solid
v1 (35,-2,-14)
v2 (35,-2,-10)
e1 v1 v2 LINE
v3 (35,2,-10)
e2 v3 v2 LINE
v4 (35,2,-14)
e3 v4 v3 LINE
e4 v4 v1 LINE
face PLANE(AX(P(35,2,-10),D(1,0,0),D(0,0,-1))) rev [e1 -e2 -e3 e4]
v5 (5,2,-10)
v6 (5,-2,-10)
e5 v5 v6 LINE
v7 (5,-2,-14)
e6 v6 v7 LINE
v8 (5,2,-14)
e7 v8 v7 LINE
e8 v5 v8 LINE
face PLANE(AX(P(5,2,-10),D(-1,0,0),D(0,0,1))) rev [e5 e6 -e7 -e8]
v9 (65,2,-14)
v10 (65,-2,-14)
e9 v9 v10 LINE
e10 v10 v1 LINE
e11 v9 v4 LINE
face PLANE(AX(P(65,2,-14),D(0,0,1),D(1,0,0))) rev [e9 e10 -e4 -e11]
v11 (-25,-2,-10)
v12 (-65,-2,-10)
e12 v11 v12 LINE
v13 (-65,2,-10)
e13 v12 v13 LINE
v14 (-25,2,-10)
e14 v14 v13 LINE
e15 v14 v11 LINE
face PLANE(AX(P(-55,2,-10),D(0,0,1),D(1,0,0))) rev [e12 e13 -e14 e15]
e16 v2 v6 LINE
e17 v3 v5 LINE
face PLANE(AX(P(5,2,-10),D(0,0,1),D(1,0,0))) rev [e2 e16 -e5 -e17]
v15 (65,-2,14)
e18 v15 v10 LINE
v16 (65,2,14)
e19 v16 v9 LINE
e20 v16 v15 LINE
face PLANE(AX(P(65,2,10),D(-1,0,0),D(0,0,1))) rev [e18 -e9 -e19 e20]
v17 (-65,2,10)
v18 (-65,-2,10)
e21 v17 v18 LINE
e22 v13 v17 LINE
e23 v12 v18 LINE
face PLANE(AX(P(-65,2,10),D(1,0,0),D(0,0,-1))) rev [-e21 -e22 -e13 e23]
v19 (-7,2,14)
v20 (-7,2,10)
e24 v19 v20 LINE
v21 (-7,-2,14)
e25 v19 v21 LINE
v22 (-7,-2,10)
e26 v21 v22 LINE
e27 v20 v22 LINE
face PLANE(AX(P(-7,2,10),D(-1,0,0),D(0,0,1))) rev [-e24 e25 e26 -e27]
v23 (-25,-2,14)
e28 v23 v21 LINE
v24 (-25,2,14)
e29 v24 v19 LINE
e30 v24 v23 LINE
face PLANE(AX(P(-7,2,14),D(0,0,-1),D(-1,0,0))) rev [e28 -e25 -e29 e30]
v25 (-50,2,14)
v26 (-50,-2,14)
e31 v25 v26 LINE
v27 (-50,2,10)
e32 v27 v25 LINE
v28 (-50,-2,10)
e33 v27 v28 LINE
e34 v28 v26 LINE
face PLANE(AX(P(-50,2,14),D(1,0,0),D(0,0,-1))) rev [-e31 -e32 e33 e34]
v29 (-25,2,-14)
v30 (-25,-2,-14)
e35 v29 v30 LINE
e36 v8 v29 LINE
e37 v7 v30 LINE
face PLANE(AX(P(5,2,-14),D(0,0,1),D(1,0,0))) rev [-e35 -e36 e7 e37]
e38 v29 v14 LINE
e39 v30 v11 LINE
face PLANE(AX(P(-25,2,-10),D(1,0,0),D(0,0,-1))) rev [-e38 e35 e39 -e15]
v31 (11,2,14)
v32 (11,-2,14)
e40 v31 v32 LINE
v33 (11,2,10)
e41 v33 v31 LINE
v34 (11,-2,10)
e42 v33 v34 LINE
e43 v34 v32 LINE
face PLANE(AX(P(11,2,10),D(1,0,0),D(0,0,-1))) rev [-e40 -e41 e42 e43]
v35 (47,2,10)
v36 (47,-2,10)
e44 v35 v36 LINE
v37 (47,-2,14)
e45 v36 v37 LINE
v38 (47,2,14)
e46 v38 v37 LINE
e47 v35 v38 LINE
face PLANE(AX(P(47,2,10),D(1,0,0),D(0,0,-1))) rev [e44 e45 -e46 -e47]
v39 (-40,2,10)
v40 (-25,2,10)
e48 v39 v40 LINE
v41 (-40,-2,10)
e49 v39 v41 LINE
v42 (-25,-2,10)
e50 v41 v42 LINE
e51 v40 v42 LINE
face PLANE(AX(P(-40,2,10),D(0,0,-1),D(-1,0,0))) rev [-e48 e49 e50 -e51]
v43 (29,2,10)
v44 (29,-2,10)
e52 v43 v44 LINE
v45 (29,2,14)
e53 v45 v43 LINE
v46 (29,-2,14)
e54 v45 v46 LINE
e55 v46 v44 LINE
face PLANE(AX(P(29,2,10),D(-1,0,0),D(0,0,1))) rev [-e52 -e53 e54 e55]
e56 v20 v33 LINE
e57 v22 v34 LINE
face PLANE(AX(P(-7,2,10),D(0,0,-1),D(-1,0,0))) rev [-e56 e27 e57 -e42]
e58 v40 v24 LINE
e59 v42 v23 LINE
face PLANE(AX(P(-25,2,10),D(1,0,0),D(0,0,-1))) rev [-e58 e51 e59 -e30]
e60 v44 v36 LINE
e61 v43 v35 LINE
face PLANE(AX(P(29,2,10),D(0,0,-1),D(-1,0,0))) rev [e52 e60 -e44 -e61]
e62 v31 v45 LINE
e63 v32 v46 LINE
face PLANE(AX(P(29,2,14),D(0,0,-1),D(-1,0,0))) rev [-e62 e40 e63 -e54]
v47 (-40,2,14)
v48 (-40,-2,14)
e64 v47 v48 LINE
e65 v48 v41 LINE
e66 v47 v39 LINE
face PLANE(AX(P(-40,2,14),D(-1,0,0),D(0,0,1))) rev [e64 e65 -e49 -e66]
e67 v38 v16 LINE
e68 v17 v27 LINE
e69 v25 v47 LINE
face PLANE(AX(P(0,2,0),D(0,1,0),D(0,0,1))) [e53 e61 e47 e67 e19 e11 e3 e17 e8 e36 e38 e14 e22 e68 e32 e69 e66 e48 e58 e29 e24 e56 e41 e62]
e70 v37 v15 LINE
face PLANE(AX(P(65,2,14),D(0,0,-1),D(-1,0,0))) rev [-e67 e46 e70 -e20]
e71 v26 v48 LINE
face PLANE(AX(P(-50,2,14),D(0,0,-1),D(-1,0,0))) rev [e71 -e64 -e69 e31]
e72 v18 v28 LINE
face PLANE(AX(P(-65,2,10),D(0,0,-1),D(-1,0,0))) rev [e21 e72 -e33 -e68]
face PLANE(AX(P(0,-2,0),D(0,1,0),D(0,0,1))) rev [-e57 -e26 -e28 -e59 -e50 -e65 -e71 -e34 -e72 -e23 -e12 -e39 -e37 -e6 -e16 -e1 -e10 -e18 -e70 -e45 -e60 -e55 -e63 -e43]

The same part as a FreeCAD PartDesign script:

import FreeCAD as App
import Part
import Sketcher
Q = App.Units.Quantity

doc = App.newDocument("Part")
body = doc.addObject("PartDesign::Body", "Body")

sketch1 = body.newObject("Sketcher::SketchObject", "Sketch")
sketch1.AttachmentSupport = (doc.getObject("XZ_Plane"), [""])
sketch1.MapMode = "FlatFace"
sketch1.addGeometry([
    Part.LineSegment(App.Vector(-65, 10, 0), App.Vector(-50, 10, 0)),
    Part.LineSegment(App.Vector(-50, 10, 0), App.Vector(-50, 14, 0)),
    Part.LineSegment(App.Vector(-50, 14, 0), App.Vector(-40, 14, 0)),
    Part.LineSegment(App.Vector(-40, 14, 0), App.Vector(-40, 10, 0)),
    Part.LineSegment(App.Vector(-40, 10, 0), App.Vector(-25, 10, 0)),
    Part.LineSegment(App.Vector(-25, 10, 0), App.Vector(-25, 14, 0)),
    Part.LineSegment(App.Vector(-25, 14, 0), App.Vector(-7, 14, 0)),
    Part.LineSegment(App.Vector(-7, 14, 0), App.Vector(-7, 10, 0)),
    Part.LineSegment(App.Vector(-7, 10, 0), App.Vector(11, 10, 0)),
    Part.LineSegment(App.Vector(11, 10, 0), App.Vector(11, 14, 0)),
    Part.LineSegment(App.Vector(11, 14, 0), App.Vector(29, 14, 0)),
    Part.LineSegment(App.Vector(29, 14, 0), App.Vector(29, 10, 0)),
    Part.LineSegment(App.Vector(29, 10, 0), App.Vector(47, 10, 0)),
    Part.LineSegment(App.Vector(47, 10, 0), App.Vector(47, 14, 0)),
    Part.LineSegment(App.Vector(47, 14, 0), App.Vector(65, 14, 0)),
    Part.LineSegment(App.Vector(65, 14, 0), App.Vector(65, -14, 0)),
    Part.LineSegment(App.Vector(65, -14, 0), App.Vector(35, -14, 0)),
    Part.LineSegment(App.Vector(35, -14, 0), App.Vector(35, -10, 0)),
    Part.LineSegment(App.Vector(35, -10, 0), App.Vector(5, -10, 0)),
    Part.LineSegment(App.Vector(5, -10, 0), App.Vector(5, -14, 0)),
    Part.LineSegment(App.Vector(5, -14, 0), App.Vector(-25, -14, 0)),
    Part.LineSegment(App.Vector(-25, -14, 0), App.Vector(-25, -10, 0)),
    Part.LineSegment(App.Vector(-25, -10, 0), App.Vector(-55, -10, 0)),
    Part.LineSegment(App.Vector(-55, -10, 0), App.Vector(-55, -14, 0)),
    Part.LineSegment(App.Vector(-55, -14, 0), App.Vector(-65, -14, 0)),
    Part.LineSegment(App.Vector(-65, -14, 0), App.Vector(-65, 10, 0)),
], False)
sketch1.addConstraint([
    Sketcher.Constraint("Coincident", 0, 2, 1, 1),
    Sketcher.Constraint("Coincident", 1, 2, 2, 1),
    Sketcher.Constraint("Coincident", 2, 2, 3, 1),
    Sketcher.Constraint("Coincident", 3, 2, 4, 1),
    Sketcher.Constraint("Coincident", 4, 2, 5, 1),
    Sketcher.Constraint("Coincident", 5, 2, 6, 1),
    Sketcher.Constraint("Coincident", 6, 2, 7, 1),
    Sketcher.Constraint("Coincident", 7, 2, 8, 1),
    Sketcher.Constraint("Coincident", 8, 2, 9, 1),
    Sketcher.Constraint("Coincident", 9, 2, 10, 1),
    Sketcher.Constraint("Coincident", 10, 2, 11, 1),
    Sketcher.Constraint("Coincident", 11, 2, 12, 1),
    Sketcher.Constraint("Coincident", 12, 2, 13, 1),
    Sketcher.Constraint("Coincident", 13, 2, 14, 1),
    Sketcher.Constraint("Coincident", 14, 2, 15, 1),
    Sketcher.Constraint("Coincident", 15, 2, 16, 1),
    Sketcher.Constraint("Coincident", 16, 2, 17, 1),
    Sketcher.Constraint("Coincident", 17, 2, 18, 1),
    Sketcher.Constraint("Coincident", 18, 2, 19, 1),
    Sketcher.Constraint("Coincident", 19, 2, 20, 1),
    Sketcher.Constraint("Coincident", 20, 2, 21, 1),
    Sketcher.Constraint("Coincident", 21, 2, 22, 1),
    Sketcher.Constraint("Coincident", 22, 2, 23, 1),
    Sketcher.Constraint("Coincident", 23, 2, 24, 1),
    Sketcher.Constraint("Coincident", 24, 2, 25, 1),
    Sketcher.Constraint("Coincident", 25, 2, 0, 1),
    Sketcher.Constraint("Horizontal", 0),
    Sketcher.Constraint("Vertical", 1),
    Sketcher.Constraint("Horizontal", 2),
    Sketcher.Constraint("Vertical", 3),
    Sketcher.Constraint("Horizontal", 4),
    Sketcher.Constraint("Vertical", 5),
    Sketcher.Constraint("Horizontal", 6),
    Sketcher.Constraint("Vertical", 7),
    Sketcher.Constraint("Horizontal", 8),
    Sketcher.Constraint("Vertical", 9),
    Sketcher.Constraint("Horizontal", 10),
    Sketcher.Constraint("Vertical", 11),
    Sketcher.Constraint("Horizontal", 12),
    Sketcher.Constraint("Vertical", 13),
    Sketcher.Constraint("Horizontal", 14),
    Sketcher.Constraint("Vertical", 15),
    Sketcher.Constraint("Horizontal", 16),
    Sketcher.Constraint("Vertical", 17),
    Sketcher.Constraint("Horizontal", 18),
    Sketcher.Constraint("Vertical", 19),
    Sketcher.Constraint("Horizontal", 20),
    Sketcher.Constraint("Vertical", 21),
    Sketcher.Constraint("Horizontal", 22),
    Sketcher.Constraint("Vertical", 23),
    Sketcher.Constraint("Horizontal", 24),
    Sketcher.Constraint("Vertical", 25),
    Sketcher.Constraint("Symmetric", 14, 2, 24, 2, -1, 1),
    Sketcher.Constraint("Symmetric", 5, 2, 20, 2, -1),
    Sketcher.Constraint("Horizontal", 0, 2, 3, 2),
    Sketcher.Constraint("Horizontal", 2, 2, 5, 2),
    Sketcher.Constraint("Horizontal", 4, 2, 7, 2),
    Sketcher.Constraint("Horizontal", 6, 2, 9, 2),
    Sketcher.Constraint("Horizontal", 8, 2, 11, 2),
    Sketcher.Constraint("Horizontal", 10, 2, 13, 2),
    Sketcher.Constraint("Horizontal", 16, 2, 19, 2),
    Sketcher.Constraint("Horizontal", 18, 2, 21, 2),
    Sketcher.Constraint("Equal", 0, 4),
    Sketcher.Constraint("Equal", 6, 8),
    Sketcher.Constraint("Equal", 8, 10),
    Sketcher.Constraint("Equal", 10, 12),
    Sketcher.Constraint("Equal", 12, 14),
    Sketcher.Constraint("Equal", 16, 18),
    Sketcher.Constraint("Equal", 18, 20),
    Sketcher.Constraint("Equal", 20, 22),
    Sketcher.Constraint("Equal", 2, 24),
    Sketcher.Constraint("Equal", 13, 17),
    Sketcher.Constraint("DistanceX", 0, 1, 0, 2, Q("15 mm")),
    Sketcher.Constraint("DistanceX", 2, 1, 2, 2, Q("10 mm")),
    Sketcher.Constraint("DistanceY", 1, 1, 1, 2, Q("4 mm")),
    Sketcher.Constraint("DistanceY", 15, 2, 15, 1, Q("28 mm")),
])
pad1 = body.newObject("PartDesign::Pad", "Pad")
pad1.Profile = sketch1
pad1.Length = 4
pad1.Midplane = True

sketch2 = body.newObject("Sketcher::SketchObject", "Sketch001")
sketch2.AttachmentSupport = (doc.getObject("XZ_Plane"), [""])
sketch2.MapMode = "FlatFace"
sketch2.AttachmentOffset = App.Placement(App.Vector(0, 0, -2), App.Rotation())
sketch2.addGeometry([
    Part.LineSegment(App.Vector(-65, -14, 0), App.Vector(-65, -10, 0)),
    Part.LineSegment(App.Vector(-65, -10, 0), App.Vector(-55, -10, 0)),
    Part.LineSegment(App.Vector(-55, -10, 0), App.Vector(-55, -14, 0)),
    Part.LineSegment(App.Vector(-55, -14, 0), App.Vector(-65, -14, 0)),
], False)
sketch2.addConstraint([
    Sketcher.Constraint("Coincident", 0, 2, 1, 1),
    Sketcher.Constraint("Coincident", 1, 2, 2, 1),
    Sketcher.Constraint("Coincident", 2, 2, 3, 1),
    Sketcher.Constraint("Coincident", 3, 2, 0, 1),
    Sketcher.Constraint("Vertical", 0),
    Sketcher.Constraint("Horizontal", 1),
    Sketcher.Constraint("Vertical", 2),
    Sketcher.Constraint("Horizontal", 3),
    Sketcher.Constraint("DistanceX", 1, 1, 1, 2, Q("10 mm")),
    Sketcher.Constraint("DistanceY", 0, 1, 0, 2, Q("4 mm")),
    Sketcher.Constraint("DistanceX", 0, 2, -1, 1, Q("65 mm")),
    Sketcher.Constraint("DistanceY", 0, 2, -1, 1, Q("10 mm")),
])
pocket1 = body.newObject("PartDesign::Pocket", "Pocket")
pocket1.Profile = sketch2
pocket1.Type = "ThroughAll"
pocket1.Reversed = True

doc.recompute()
